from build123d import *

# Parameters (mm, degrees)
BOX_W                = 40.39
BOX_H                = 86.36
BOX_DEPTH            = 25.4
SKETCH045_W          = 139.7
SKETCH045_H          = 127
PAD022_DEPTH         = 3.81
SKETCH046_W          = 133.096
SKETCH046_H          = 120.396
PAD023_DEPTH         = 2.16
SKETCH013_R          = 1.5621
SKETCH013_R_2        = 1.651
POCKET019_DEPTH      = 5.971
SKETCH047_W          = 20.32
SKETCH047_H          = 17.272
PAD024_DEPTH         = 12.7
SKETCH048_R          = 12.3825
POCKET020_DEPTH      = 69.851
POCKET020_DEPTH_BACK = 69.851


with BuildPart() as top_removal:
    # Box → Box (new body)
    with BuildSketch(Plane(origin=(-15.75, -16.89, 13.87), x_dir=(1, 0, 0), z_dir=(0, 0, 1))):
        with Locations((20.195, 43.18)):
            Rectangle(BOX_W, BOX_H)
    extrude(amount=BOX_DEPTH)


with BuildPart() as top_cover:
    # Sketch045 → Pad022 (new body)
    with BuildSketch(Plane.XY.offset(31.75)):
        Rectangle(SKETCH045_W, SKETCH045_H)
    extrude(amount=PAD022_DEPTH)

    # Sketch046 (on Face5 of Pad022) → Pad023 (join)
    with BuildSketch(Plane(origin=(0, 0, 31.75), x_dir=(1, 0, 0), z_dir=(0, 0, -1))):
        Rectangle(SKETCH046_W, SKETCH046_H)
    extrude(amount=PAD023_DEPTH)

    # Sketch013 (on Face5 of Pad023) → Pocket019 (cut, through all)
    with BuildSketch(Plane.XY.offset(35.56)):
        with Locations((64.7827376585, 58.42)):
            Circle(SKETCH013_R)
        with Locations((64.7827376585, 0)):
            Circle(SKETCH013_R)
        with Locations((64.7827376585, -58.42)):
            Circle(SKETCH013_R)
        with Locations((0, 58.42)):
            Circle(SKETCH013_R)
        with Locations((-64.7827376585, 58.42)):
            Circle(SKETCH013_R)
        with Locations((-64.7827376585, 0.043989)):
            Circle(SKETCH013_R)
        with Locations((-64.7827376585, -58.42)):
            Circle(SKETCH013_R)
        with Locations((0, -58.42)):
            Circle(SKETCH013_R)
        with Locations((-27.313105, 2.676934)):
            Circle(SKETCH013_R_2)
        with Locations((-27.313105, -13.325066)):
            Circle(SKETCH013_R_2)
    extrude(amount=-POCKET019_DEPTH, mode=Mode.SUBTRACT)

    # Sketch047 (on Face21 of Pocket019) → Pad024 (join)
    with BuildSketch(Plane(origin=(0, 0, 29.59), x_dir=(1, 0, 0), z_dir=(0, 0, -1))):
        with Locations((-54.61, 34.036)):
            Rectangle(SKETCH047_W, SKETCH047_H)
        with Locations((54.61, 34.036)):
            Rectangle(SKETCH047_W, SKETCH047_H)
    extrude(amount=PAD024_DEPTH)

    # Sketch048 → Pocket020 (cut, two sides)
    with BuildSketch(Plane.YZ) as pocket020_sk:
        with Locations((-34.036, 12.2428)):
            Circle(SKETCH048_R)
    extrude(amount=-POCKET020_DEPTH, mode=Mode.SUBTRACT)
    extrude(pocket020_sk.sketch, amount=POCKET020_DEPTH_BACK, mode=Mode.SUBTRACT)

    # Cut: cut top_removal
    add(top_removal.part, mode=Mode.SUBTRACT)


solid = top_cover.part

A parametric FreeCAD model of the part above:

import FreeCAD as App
import Part
import Sketcher

V = App.Vector
Q = App.Units.Quantity


def add_polygon(sketch, points):
    """Adds a closed chain of lines whose ends are joined by coincident constraints."""
    first, n = sketch.GeometryCount, len(points)
    for a, b in zip(points, points[1:] + points[:1]):
        sketch.addGeometry(Part.LineSegment(App.Vector(*a, 0), App.Vector(*b, 0)), False)
    for i in range(n):
        sketch.addConstraint(Sketcher.Constraint("Coincident", first + i, 2, first + (i + 1) % n, 1))

doc = App.newDocument("Part")
body = doc.addObject("PartDesign::Body", "Body")

# Sketch on XY plane
sketch1 = body.newObject("Sketcher::SketchObject", "Sketch")
sketch1.AttachmentSupport = (doc.getObject("XY_Plane"), [""])
sketch1.MapMode = "FlatFace"
sketch1.AttachmentOffset = App.Placement(V(0, 0, 13.87), App.Rotation())
add_polygon(sketch1, [(-15.75, 69.47), (-15.75, -16.89), (24.64, -16.89), (24.64, 69.47)])  # lines 0-3
sketch1.addConstraint([
    Sketcher.Constraint("Vertical", 0),
    Sketcher.Constraint("Horizontal", 1),
    Sketcher.Constraint("Vertical", 2),
    Sketcher.Constraint("Horizontal", 3),
    Sketcher.Constraint("DistanceY", 0, 2, 0, 1, Q("3.4 in")),
    Sketcher.Constraint("DistanceX", 1, 1, 1, 2, 40.39),
    Sketcher.Constraint("DistanceX", 0, 2, -1, 1, 15.75),
    Sketcher.Constraint("DistanceY", 0, 2, -1, 1, 16.89),
])
pad1 = body.newObject("PartDesign::Pad", "Pad")
pad1.Profile = sketch1
pad1.Length = Q("1 in")
body2 = doc.addObject("PartDesign::Body", "Body001")

# Sketch on XY plane
sketch2 = body2.newObject("Sketcher::SketchObject", "Sketch001")
sketch2.AttachmentSupport = (doc.getObject("XY_Plane001"), [""])
sketch2.MapMode = "FlatFace"
sketch2.AttachmentOffset = App.Placement(V(0, 0, 1.25 * 25.4), App.Rotation())
add_polygon(sketch2, [(-69.85, 63.5), (-69.85, -63.5), (69.85, -63.5), (69.85, 63.5)])  # lines 0-3
sketch2.addConstraint([
    Sketcher.Constraint("Vertical", 0),
    Sketcher.Constraint("Horizontal", 1),
    Sketcher.Constraint("Vertical", 2),
    Sketcher.Constraint("Horizontal", 3),
    Sketcher.Constraint("Symmetric", 0, 2, 2, 2, -1, 1),
    Sketcher.Constraint("DistanceY", 0, 2, 0, 1, Q("5 in")),
    Sketcher.Constraint("DistanceX", 1, 1, 1, 2, Q("5.5 in")),
])
pad2 = body2.newObject("PartDesign::Pad", "Pad001")
pad2.Profile = sketch2
pad2.Length = Q("0.15 in")

# Sketch on XY plane
sketch3 = body2.newObject("Sketcher::SketchObject", "Sketch002")
sketch3.AttachmentSupport = (doc.getObject("XY_Plane001"), [""])
sketch3.MapMode = "FlatFace"
sketch3.AttachmentOffset = App.Placement(V(0, 0, 1.25 * 25.4), App.Rotation())
add_polygon(sketch3, [(-66.548, -60.198), (-66.548, 60.198), (66.548, 60.198), (66.548, -60.198)])  # lines 0-3
sketch3.addConstraint([
    Sketcher.Constraint("Vertical", 0),
    Sketcher.Constraint("Horizontal", 1),
    Sketcher.Constraint("Vertical", 2),
    Sketcher.Constraint("Horizontal", 3),
    Sketcher.Constraint("Symmetric", 0, 2, 2, 2, -1, 1),
    Sketcher.Constraint("DistanceX", 1, 1, 1, 2, Q("5.24 in")),
    Sketcher.Constraint("DistanceY", 0, 1, 0, 2, Q("4.74 in")),
])
pad3 = body2.newObject("PartDesign::Pad", "Pad002")
pad3.Profile = sketch3
pad3.Length = 2.16
pad3.Reversed = True

# Sketch on XY plane
sketch4 = body2.newObject("Sketcher::SketchObject", "Sketch003")
sketch4.AttachmentSupport = (doc.getObject("XY_Plane001"), [""])
sketch4.MapMode = "FlatFace"
sketch4.AttachmentOffset = App.Placement(V(0, 0, 1.4 * 25.4), App.Rotation())
sketch4.addGeometry([
    Part.Circle(V(64.782738, 58.42, 0), V(0, 0, 1), 1.5621),  # 0
    Part.Circle(V(64.782738, 0, 0), V(0, 0, 1), 1.5621),  # 1
    Part.Circle(V(64.782738, -58.42, 0), V(0, 0, 1), 1.5621),  # 2
    Part.Circle(V(0, 58.42, 0), V(0, 0, 1), 1.5621),  # 3
    Part.Circle(V(-64.782738, 58.42, 0), V(0, 0, 1), 1.5621),  # 4
    Part.Circle(V(-64.782738, 0.043989, 0), V(0, 0, 1), 1.5621),  # 5
    Part.Circle(V(-64.782738, -58.42, 0), V(0, 0, 1), 1.5621),  # 6
    Part.Circle(V(0, -58.42, 0), V(0, 0, 1), 1.5621),  # 7
    Part.Circle(V(-27.313105, 2.676934, 0), V(0, 0, 1), 1.651),  # 8
    Part.Circle(V(-27.313105, -13.325066, 0), V(0, 0, 1), 1.651),  # 9
], False)
sketch4.addConstraint([
    Sketcher.Constraint("Equal", 0, 1),
    Sketcher.Constraint("Equal", 1, 2),
    Sketcher.Constraint("Equal", 2, 3),
    Sketcher.Constraint("Equal", 3, 4),
    Sketcher.Constraint("Equal", 4, 5),
    Sketcher.Constraint("Equal", 5, 6),
    Sketcher.Constraint("Equal", 6, 7),
    Sketcher.Constraint("Equal", 8, 9),
    Sketcher.Constraint("Symmetric", 2, 3, 4, 3, -1, 1),
    Sketcher.Constraint("Symmetric", 0, 3, 6, 3, -1, 1),
    Sketcher.Constraint("Symmetric", 3, 3, 7, 3, -1, 1),
    Sketcher.Constraint("Symmetric", 0, 3, 4, 3, -2),
    Sketcher.Constraint("PointOnObject", 1, 3, -1),
    Sketcher.Constraint("PointOnObject", 3, 3, -2),
    Sketcher.Constraint("Horizontal", 0, 3, 3, 3),
    Sketcher.Constraint("Vertical", 0, 3, 1, 3),
    Sketcher.Constraint("Vertical", 4, 3, 5, 3),
    Sketcher.Constraint("Vertical", 8, 3, 9, 3),
    Sketcher.Constraint("Diameter", 8, Q("0.13 in")),
    Sketcher.Constraint("Diameter", 0, Q("0.123 in")),
    Sketcher.Constraint("DistanceY", -1, 1, 0, 3, Q("2.3 in")),
    Sketcher.Constraint("DistanceY", 9, 3, 8, 3, Q("0.63 in")),
    Sketcher.Constraint("DistanceY", -1, 1, 5, 3, 0.043989),
    Sketcher.Constraint("DistanceX", -1, 1, 0, 3, 64.782738),
    Sketcher.Constraint("DistanceX", 8, 3, -1, 1, 27.313105),
    Sketcher.Constraint("DistanceY", -1, 1, 8, 3, 2.676934),
])
pocket1 = body2.newObject("PartDesign::Pocket", "Pocket")
pocket1.Profile = sketch4
pocket1.Type = "ThroughAll"

# Sketch on XY plane
sketch5 = body2.newObject("Sketcher::SketchObject", "Sketch004")
sketch5.AttachmentSupport = (doc.getObject("XY_Plane001"), [""])
sketch5.MapMode = "FlatFace"
sketch5.AttachmentOffset = App.Placement(V(0, 0, 29.59), App.Rotation())
add_polygon(sketch5, [(-64.77, -42.672), (-64.77, -25.4), (-44.45, -25.4), (-44.45, -42.672)])  # lines 0-3
add_polygon(sketch5, [(44.45, -42.672), (44.45, -25.4), (64.77, -25.4), (64.77, -42.672)])  # lines 4-7
sketch5.addConstraint([
    Sketcher.Constraint("Vertical", 0),
    Sketcher.Constraint("Horizontal", 1),
    Sketcher.Constraint("Vertical", 2),
    Sketcher.Constraint("Horizontal", 3),
    Sketcher.Constraint("Vertical", 4),
    Sketcher.Constraint("Horizontal", 5),
    Sketcher.Constraint("Vertical", 6),
    Sketcher.Constraint("Horizontal", 7),
    Sketcher.Constraint("Symmetric", 1, 2, 4, 2, -2),
    Sketcher.Constraint("Symmetric", 3, 2, 6, 2, -2),
    Sketcher.Constraint("DistanceX", 1, 1, 1, 2, Q("0.8 in")),
    Sketcher.Constraint("DistanceY", 0, 2, -1, 1, Q("1 in")),
    Sketcher.Constraint("DistanceY", 0, 1, 0, 2, Q("0.68 in")),
    Sketcher.Constraint("DistanceX", 1, 2, 4, 2, Q("3.5 in")),
])
pad4 = body2.newObject("PartDesign::Pad", "Pad003")
pad4.Profile = sketch5
pad4.Length = Q("0.5 in")
pad4.Reversed = True

# Sketch on YZ plane
sketch6 = body2.newObject("Sketcher::SketchObject", "Sketch005")
sketch6.AttachmentSupport = (doc.getObject("YZ_Plane001"), [""])
sketch6.MapMode = "FlatFace"
sketch6.addGeometry(Part.Circle(V(-34.036, 12.2428, 0), V(0, 0, 1), 12.3825), False)
sketch6.addConstraint([
    Sketcher.Constraint("Diameter", 0, Q("0.975 in")),
    Sketcher.Constraint("DistanceX", 0, 3, -1, 1, Q("1.34 in")),
    Sketcher.Constraint("DistanceY", -1, 1, 0, 3, Q("0.482 in")),
])
pocket2 = body2.newObject("PartDesign::Pocket", "Pocket001")
pocket2.Profile = sketch6
pocket2.Type = "ThroughAll"
pocket2.Midplane = True
doc.recompute()

boolean = body2.newObject("PartDesign::Boolean", "Boolean")
boolean.Type = "Cut"
boolean.addObjects([body])

doc.recompute()
